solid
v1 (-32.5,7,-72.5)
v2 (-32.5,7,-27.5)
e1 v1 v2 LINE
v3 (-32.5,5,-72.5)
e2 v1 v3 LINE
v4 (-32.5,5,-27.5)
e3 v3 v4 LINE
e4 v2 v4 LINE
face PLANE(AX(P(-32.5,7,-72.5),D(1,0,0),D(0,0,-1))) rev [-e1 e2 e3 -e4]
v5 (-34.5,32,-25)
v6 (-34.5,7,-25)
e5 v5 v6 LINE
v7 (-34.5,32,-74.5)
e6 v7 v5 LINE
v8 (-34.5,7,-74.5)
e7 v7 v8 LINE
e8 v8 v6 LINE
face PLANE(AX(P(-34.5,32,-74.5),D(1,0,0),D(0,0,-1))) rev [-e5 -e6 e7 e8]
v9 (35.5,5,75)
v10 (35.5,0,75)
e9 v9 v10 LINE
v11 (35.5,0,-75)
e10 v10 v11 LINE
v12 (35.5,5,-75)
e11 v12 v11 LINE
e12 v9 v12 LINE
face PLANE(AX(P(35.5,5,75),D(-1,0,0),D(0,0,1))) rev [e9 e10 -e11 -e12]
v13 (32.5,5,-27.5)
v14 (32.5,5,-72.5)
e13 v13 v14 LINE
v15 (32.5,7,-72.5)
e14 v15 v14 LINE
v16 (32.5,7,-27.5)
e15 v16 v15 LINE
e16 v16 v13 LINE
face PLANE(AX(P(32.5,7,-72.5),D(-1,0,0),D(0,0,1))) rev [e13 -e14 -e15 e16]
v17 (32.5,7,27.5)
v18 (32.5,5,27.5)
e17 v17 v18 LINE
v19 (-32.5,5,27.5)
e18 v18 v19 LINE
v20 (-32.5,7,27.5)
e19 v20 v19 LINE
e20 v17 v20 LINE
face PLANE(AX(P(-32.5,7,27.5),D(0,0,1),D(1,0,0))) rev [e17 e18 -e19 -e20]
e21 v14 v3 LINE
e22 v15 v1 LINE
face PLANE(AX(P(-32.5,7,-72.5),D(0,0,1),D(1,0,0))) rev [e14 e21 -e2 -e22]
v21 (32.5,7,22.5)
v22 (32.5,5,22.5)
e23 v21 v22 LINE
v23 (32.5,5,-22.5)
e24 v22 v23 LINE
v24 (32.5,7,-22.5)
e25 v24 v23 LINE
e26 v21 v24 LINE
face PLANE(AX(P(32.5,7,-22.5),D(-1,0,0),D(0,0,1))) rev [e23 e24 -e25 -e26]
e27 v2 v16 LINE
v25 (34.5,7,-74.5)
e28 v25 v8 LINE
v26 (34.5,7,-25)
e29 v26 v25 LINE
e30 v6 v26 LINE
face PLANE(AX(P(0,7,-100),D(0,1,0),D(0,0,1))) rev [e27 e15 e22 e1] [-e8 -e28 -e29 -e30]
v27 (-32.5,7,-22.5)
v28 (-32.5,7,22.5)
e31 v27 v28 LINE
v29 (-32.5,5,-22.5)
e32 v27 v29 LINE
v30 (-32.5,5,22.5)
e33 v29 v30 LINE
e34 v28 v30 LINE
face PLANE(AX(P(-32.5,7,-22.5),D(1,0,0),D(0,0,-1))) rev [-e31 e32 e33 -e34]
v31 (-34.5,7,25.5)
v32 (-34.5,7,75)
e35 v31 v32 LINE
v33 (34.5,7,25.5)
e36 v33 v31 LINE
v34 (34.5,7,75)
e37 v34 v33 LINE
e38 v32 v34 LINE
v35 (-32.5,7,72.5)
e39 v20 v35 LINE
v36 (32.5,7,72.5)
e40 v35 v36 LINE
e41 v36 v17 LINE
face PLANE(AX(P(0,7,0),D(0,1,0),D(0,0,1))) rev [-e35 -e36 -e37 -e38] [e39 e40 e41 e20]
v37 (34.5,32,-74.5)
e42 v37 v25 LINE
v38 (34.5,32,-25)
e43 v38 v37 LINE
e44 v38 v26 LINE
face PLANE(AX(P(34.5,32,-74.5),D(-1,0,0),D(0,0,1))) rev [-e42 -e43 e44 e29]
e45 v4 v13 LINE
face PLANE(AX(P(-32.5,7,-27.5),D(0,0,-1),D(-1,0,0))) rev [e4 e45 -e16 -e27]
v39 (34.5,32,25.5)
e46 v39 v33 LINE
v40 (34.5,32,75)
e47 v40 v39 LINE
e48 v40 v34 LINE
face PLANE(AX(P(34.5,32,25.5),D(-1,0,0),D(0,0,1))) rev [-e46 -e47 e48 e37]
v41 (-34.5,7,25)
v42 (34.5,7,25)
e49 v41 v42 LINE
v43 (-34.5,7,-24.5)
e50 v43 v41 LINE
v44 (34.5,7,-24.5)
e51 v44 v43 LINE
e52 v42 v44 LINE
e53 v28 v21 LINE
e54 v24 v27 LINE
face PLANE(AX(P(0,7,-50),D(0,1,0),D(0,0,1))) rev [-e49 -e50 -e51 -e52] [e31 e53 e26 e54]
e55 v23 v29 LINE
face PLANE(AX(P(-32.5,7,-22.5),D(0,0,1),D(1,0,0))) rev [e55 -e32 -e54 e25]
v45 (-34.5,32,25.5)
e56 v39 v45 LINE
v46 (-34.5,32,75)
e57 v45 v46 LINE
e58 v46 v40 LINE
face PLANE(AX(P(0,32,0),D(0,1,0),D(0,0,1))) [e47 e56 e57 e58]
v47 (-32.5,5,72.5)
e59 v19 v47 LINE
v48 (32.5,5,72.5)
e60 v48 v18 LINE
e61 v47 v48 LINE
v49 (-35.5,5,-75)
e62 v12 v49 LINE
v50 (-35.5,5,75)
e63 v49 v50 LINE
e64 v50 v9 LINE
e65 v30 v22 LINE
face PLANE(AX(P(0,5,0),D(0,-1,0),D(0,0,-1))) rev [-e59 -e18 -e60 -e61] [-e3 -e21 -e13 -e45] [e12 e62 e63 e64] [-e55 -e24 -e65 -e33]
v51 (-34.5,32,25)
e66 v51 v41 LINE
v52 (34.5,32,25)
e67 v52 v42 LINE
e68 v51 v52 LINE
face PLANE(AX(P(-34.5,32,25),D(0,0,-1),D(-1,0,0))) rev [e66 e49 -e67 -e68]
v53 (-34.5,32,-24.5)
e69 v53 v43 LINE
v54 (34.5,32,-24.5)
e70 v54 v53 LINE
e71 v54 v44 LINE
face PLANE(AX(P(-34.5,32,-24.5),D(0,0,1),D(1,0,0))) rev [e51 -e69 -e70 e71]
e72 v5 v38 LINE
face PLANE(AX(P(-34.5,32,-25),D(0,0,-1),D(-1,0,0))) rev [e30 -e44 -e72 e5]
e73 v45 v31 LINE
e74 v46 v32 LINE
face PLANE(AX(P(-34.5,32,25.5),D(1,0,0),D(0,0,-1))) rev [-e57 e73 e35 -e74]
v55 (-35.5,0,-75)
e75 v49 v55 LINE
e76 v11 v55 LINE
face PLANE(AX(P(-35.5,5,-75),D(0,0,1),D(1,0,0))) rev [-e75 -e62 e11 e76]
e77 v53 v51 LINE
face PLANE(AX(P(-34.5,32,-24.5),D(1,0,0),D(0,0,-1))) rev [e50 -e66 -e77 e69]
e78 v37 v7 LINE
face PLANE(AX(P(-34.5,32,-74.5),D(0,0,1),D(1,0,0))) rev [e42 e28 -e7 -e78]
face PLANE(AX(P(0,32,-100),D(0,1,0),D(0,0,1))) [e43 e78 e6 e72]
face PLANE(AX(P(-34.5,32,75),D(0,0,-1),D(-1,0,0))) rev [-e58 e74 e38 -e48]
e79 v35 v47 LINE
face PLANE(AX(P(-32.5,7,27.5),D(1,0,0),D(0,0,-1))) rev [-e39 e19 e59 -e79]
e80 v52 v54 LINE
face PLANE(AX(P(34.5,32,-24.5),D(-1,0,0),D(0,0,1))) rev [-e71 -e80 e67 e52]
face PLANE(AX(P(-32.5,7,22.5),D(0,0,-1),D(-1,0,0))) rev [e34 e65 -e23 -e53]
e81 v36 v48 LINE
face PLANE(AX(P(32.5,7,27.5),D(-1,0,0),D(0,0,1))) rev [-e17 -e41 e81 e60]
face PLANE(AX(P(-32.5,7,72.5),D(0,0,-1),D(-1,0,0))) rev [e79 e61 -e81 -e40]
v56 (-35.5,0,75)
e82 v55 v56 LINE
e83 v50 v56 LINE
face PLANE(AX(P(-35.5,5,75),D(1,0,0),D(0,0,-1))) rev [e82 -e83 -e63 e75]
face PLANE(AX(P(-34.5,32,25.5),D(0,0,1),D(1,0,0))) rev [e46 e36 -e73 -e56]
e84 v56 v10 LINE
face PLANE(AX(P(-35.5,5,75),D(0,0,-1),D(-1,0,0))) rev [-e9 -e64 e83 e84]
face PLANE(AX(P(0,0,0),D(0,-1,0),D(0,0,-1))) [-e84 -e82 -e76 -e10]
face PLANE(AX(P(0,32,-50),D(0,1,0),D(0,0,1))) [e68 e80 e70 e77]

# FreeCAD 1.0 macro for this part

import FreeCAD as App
import Part
import Sketcher

V = App.Vector


def add_polygon(sketch, points):
    """Adds a closed chain of lines whose ends are joined by coincident constraints."""
    first, n = sketch.GeometryCount, len(points)
    for a, b in zip(points, points[1:] + points[:1]):
        sketch.addGeometry(Part.LineSegment(App.Vector(*a, 0), App.Vector(*b, 0)), False)
    for i in range(n):
        sketch.addConstraint(Sketcher.Constraint("Coincident", first + i, 2, first + (i + 1) % n, 1))

doc = App.newDocument("Part")
body = doc.addObject("PartDesign::Body", "Body")

sketch1 = body.newObject("Sketcher::SketchObject", "Sketch")
sketch1.AttachmentSupport = (doc.getObject("XZ_Plane"), [""])
sketch1.MapMode = "FlatFace"
add_polygon(sketch1, [(-35.5, -75), (-35.5, 75), (35.5, 75), (35.5, -75)])
sketch1.addConstraint(Sketcher.Constraint("Vertical", 0))
sketch1.addConstraint(Sketcher.Constraint("Horizontal", 1))
sketch1.addConstraint(Sketcher.Constraint("Vertical", 2))
sketch1.addConstraint(Sketcher.Constraint("Horizontal", 3))
sketch1.addConstraint(Sketcher.Constraint("Symmetric", 0, 2, 2, 2, -1, 1))
sketch1.addConstraint(Sketcher.Constraint("DistanceX", 1, 1, 1, 2, 71.0))
sketch1.addConstraint(Sketcher.Constraint("DistanceY", 0, 1, 0, 2, 150.0))
pad1 = body.newObject("PartDesign::Pad", "Pad")
pad1.Profile = sketch1
pad1.Length = 5
pad1.Reversed = True

sketch2 = body.newObject("Sketcher::SketchObject", "Sketch001")
sketch2.AttachmentSupport = (doc.getObject("XZ_Plane"), [""])
sketch2.MapMode = "FlatFace"
sketch2.AttachmentOffset = App.Placement(V(0, 0, -5), App.Rotation())
add_polygon(sketch2, [(-32.5, 27.5), (-32.5, 72.5), (32.5, 72.5), (32.5, 27.5)])
sketch2.addConstraint(Sketcher.Constraint("Vertical", 0))
sketch2.addConstraint(Sketcher.Constraint("Horizontal", 1))
sketch2.addConstraint(Sketcher.Constraint("Vertical", 2))
sketch2.addConstraint(Sketcher.Constraint("Horizontal", 3))
sketch2.addConstraint(Sketcher.Constraint("DistanceX", 1, 1, 1, 2, 65.0))
sketch2.addConstraint(Sketcher.Constraint("DistanceY", 0, 1, 0, 2, 45.0))
sketch2.addConstraint(Sketcher.Constraint("DistanceX", 0, 2, -1, 1, 32.5))
sketch2.addConstraint(Sketcher.Constraint("DistanceY", -1, 1, 0, 2, 72.5))
pad2 = body.newObject("PartDesign::Pad", "Pad001")
pad2.Profile = sketch2
pad2.Length = 2
pad2.Reversed = True
doc.recompute()

linearpattern = body.newObject("PartDesign::LinearPattern", "LinearPattern")
linearpattern.Originals = [pad2]
linearpattern.Direction = (doc.getObject("Z_Axis"), [""])
linearpattern.Mode = "offset"
linearpattern.Offset = 50
linearpattern.Occurrences = 3
linearpattern.Reversed = True
body.Tip = linearpattern

sketch3 = body.newObject("Sketcher::SketchObject", "Sketch002")
sketch3.AttachmentSupport = (doc.getObject("XZ_Plane"), [""])
sketch3.MapMode = "FlatFace"
sketch3.AttachmentOffset = App.Placement(V(0, 0, -7), App.Rotation())
add_polygon(sketch3, [(-34.5, 25.5), (-34.5, 75), (34.5, 75), (34.5, 25.5)])
sketch3.addConstraint(Sketcher.Constraint("Vertical", 0))
sketch3.addConstraint(Sketcher.Constraint("Horizontal", 1))
sketch3.addConstraint(Sketcher.Constraint("Vertical", 2))
sketch3.addConstraint(Sketcher.Constraint("Horizontal", 3))
sketch3.addConstraint(Sketcher.Constraint("DistanceX", 1, 1, 1, 2, 69.0))
sketch3.addConstraint(Sketcher.Constraint("DistanceY", 0, 1, 0, 2, 49.5))
sketch3.addConstraint(Sketcher.Constraint("DistanceY", -1, 1, 0, 2, 75.0))
sketch3.addConstraint(Sketcher.Constraint("DistanceX", 0, 2, -1, 1, 34.5))
pad3 = body.newObject("PartDesign::Pad", "Pad002")
pad3.Profile = sketch3
pad3.Length = 25
pad3.Reversed = True
doc.recompute()

linearpattern2 = body.newObject("PartDesign::LinearPattern", "LinearPattern001")
linearpattern2.Originals = [pad3]
linearpattern2.Direction = (doc.getObject("Z_Axis"), [""])
linearpattern2.Mode = "offset"
linearpattern2.Offset = 50
linearpattern2.Occurrences = 3
linearpattern2.Reversed = True
body.Tip = linearpattern2

doc.recompute()
